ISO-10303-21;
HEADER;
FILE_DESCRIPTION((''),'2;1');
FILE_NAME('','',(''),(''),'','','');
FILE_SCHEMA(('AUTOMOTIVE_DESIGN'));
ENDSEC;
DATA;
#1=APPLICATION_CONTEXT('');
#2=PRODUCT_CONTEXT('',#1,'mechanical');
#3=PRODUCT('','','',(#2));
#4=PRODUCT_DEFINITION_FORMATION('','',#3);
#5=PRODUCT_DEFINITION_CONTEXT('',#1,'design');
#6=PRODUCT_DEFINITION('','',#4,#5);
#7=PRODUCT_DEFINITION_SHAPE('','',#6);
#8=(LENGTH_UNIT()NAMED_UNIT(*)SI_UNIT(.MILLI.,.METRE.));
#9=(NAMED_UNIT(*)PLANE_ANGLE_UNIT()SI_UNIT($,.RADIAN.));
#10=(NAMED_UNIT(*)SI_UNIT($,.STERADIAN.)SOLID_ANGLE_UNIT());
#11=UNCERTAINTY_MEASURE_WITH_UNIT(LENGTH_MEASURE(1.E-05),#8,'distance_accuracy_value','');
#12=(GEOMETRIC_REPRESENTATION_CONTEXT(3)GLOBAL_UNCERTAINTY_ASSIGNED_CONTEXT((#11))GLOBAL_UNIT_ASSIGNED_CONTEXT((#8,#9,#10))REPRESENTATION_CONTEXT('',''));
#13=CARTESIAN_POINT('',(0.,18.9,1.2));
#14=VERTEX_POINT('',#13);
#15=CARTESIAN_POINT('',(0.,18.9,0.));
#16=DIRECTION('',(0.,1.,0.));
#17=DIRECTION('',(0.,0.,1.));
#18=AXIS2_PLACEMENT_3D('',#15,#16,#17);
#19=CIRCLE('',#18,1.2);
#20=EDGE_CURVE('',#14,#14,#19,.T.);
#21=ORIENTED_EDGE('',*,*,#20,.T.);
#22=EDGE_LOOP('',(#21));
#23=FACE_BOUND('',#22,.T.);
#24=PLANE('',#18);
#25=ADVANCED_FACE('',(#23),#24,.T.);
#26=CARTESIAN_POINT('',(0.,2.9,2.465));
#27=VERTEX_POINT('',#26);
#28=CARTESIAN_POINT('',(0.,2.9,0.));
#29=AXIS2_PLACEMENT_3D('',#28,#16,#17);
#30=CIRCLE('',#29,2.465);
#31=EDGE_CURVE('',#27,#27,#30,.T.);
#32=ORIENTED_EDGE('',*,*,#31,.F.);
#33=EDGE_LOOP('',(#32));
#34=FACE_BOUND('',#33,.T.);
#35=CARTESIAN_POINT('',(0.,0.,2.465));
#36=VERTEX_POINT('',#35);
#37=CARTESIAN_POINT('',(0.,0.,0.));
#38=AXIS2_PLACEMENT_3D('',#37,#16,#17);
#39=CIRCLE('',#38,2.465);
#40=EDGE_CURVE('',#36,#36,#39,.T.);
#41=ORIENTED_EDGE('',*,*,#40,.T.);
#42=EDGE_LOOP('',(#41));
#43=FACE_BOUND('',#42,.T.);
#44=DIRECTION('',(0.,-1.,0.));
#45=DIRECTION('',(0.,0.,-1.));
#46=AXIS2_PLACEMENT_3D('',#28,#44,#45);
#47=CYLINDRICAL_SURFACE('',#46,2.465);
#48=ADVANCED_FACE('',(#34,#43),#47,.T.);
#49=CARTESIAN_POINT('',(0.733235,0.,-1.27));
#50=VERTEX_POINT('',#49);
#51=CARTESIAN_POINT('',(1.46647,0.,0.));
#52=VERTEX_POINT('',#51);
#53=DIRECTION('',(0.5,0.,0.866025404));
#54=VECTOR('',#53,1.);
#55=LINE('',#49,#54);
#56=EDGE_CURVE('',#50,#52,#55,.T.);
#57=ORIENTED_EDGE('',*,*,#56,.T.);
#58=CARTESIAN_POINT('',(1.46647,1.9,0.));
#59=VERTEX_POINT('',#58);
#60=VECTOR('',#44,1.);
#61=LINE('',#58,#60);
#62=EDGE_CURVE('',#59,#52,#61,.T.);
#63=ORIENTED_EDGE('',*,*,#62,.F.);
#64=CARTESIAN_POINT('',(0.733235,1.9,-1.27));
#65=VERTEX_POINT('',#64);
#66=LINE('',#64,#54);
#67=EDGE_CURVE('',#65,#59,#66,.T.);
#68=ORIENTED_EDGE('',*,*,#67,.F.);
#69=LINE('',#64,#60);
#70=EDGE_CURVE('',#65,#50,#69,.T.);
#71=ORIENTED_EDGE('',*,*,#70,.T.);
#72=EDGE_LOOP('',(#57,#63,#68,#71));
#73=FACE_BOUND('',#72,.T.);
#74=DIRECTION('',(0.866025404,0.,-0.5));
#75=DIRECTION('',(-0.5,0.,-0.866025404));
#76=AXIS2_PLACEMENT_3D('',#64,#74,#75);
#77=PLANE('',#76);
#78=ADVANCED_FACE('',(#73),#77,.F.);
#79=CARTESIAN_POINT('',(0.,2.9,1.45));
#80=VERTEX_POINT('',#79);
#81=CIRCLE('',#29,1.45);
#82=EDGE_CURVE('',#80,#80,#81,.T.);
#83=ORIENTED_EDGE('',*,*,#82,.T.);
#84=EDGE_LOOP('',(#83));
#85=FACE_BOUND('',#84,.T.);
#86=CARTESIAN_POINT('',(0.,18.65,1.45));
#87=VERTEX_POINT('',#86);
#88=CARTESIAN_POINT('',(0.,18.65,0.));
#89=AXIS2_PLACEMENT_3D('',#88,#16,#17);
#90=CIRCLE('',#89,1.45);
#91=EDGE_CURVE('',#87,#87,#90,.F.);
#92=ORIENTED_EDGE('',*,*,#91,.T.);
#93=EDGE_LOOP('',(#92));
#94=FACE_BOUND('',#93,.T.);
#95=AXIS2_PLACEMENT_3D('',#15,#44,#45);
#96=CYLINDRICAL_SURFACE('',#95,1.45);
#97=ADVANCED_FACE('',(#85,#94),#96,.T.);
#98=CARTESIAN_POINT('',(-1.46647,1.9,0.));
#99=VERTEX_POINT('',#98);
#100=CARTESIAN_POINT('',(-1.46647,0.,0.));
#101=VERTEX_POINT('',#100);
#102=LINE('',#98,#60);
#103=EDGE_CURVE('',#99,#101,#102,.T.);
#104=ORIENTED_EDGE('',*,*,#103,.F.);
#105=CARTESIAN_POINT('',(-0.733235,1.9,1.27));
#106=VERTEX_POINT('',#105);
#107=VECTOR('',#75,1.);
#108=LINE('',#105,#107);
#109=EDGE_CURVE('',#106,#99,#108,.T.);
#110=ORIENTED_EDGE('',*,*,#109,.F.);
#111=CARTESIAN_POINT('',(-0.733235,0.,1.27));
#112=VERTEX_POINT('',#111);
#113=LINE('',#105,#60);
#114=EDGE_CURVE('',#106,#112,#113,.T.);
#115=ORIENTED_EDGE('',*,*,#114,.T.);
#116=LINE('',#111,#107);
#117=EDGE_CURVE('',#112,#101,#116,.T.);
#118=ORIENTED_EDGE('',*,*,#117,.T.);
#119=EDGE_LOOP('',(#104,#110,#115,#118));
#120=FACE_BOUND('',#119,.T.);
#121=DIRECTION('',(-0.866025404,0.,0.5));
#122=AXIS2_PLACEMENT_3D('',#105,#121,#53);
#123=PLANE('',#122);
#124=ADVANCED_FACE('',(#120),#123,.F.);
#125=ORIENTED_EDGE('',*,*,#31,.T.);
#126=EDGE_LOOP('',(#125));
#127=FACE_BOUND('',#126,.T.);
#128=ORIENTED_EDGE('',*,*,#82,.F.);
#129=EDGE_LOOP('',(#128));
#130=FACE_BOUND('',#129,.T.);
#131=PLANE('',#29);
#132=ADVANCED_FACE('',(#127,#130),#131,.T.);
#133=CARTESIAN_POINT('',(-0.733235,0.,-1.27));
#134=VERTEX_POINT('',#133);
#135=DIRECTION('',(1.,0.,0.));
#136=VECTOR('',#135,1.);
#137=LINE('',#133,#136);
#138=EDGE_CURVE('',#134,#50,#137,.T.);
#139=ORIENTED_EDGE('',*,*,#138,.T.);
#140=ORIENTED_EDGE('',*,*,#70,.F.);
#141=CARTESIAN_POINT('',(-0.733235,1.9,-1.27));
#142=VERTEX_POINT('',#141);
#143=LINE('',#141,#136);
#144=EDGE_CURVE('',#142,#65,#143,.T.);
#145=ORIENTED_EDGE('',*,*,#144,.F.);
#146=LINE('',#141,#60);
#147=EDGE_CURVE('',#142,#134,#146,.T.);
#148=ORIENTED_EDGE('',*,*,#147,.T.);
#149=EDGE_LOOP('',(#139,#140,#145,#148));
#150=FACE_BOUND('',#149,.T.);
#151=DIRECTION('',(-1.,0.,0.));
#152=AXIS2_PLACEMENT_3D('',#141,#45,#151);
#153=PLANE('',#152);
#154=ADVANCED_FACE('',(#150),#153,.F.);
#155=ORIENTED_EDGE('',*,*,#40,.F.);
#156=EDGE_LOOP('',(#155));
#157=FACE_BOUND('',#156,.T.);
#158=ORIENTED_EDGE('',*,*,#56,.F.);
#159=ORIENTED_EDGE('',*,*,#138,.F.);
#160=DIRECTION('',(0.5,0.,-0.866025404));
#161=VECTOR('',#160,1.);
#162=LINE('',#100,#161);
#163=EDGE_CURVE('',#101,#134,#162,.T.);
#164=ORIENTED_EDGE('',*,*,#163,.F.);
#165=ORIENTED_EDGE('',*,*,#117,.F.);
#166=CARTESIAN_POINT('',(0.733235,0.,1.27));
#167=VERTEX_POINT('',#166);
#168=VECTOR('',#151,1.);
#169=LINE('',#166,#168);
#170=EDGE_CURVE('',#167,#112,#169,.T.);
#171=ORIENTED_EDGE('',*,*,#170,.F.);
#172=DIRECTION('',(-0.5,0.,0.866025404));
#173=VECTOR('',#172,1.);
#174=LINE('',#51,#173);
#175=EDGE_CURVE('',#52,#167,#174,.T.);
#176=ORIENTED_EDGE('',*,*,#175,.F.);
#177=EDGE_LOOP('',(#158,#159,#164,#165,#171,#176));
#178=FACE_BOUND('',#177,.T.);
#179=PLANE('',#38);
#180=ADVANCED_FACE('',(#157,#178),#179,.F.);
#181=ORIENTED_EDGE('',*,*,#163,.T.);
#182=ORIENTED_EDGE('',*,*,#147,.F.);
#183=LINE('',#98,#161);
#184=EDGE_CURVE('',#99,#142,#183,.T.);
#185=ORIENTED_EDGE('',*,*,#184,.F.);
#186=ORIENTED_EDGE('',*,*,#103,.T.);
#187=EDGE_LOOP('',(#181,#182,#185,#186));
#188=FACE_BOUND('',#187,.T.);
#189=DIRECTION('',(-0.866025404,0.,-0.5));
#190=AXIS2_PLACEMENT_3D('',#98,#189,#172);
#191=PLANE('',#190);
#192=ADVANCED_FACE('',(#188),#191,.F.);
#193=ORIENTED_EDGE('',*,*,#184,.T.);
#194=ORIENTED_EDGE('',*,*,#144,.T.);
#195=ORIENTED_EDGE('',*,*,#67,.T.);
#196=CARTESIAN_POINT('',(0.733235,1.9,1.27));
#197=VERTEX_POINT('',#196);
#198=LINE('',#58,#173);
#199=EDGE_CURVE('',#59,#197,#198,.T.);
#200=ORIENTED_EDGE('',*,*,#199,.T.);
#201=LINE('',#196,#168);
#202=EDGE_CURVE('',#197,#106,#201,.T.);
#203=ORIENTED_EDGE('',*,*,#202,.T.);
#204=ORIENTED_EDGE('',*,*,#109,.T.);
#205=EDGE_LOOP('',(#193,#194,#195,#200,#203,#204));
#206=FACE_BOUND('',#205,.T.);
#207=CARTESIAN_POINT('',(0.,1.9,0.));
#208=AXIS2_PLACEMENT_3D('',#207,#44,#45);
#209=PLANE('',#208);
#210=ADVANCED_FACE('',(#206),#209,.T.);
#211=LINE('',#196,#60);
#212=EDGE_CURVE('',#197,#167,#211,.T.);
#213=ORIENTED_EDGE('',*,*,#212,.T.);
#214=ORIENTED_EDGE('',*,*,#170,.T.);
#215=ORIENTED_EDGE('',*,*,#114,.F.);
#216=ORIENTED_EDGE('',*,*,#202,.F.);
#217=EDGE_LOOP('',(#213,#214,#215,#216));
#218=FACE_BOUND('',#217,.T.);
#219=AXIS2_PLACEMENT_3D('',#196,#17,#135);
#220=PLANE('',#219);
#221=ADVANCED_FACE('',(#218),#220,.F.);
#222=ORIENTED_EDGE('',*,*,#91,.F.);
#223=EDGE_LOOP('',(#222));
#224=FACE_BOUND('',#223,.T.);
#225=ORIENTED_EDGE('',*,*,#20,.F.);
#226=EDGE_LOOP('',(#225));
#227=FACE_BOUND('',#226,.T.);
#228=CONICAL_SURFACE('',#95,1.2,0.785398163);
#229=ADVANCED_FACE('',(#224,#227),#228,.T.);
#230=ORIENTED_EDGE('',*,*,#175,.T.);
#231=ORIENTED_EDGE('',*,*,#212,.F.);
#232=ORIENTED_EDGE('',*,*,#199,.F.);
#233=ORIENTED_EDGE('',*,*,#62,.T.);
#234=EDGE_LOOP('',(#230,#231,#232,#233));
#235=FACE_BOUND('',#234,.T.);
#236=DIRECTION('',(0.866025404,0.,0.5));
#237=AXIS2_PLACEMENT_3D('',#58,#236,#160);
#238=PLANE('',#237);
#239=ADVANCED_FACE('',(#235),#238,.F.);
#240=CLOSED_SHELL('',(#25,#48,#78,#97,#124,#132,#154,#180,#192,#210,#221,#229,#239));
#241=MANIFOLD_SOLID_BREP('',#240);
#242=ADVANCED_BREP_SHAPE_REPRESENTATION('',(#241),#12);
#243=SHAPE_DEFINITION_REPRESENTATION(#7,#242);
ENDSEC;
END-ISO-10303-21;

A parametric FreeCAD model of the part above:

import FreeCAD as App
import Part
import Sketcher

V = App.Vector
Q = App.Units.Quantity


def edges_at(feature, points):
    """Names of the edges that pass closest to the given points."""
    edges = feature.Shape.Edges
    near = lambda p: min(range(len(edges)), key=lambda i: edges[i].distToShape(Part.Vertex(*p))[0])
    return sorted({f"Edge{near(p) + 1}" for p in points})

doc = App.newDocument("Part")
body = doc.addObject("PartDesign::Body", "Body")

sketch1 = doc.addObject("Sketcher::SketchObject", "Sketch")
body.addObject(sketch1)
sketch1.AttachmentSupport = (doc.XZ_Plane, [""])
sketch1.MapMode = "FlatFace"
sketch1.addGeometry(Part.Circle(V(0, 0, 0), V(0, 0, 1), 2.465), False)
sketch1.addConstraint([
    Sketcher.Constraint("Coincident", 0, 3, -1, 1),
    Sketcher.Constraint("Diameter", 0, 4.93),
])
pad1 = doc.addObject("PartDesign::Pad", "Pad")
body.addObject(pad1)
pad1.Profile = sketch1
pad1.Length = 2.9
pad1.Reversed = True

sketch2 = doc.addObject("Sketcher::SketchObject", "Sketch001")
body.addObject(sketch2)
sketch2.AttachmentSupport = (doc.XZ_Plane, [""])
sketch2.MapMode = "FlatFace"
sketch2.AttachmentOffset = App.Placement(V(0, 0, -2.9), App.Rotation())
sketch2.addGeometry(Part.Circle(V(0, 0, 0), V(0, 0, 1), 1.45), False)
sketch2.addConstraint([
    Sketcher.Constraint("Coincident", 0, 3, -1, 1),
    Sketcher.Constraint("Diameter", 0, 2.9),
])
pad2 = doc.addObject("PartDesign::Pad", "Pad001")
body.addObject(pad2)
pad2.Profile = sketch2
pad2.Length = 16
pad2.Reversed = True

sketch3 = doc.addObject("Sketcher::SketchObject", "Sketch002")
body.addObject(sketch3)
sketch3.AttachmentSupport = (doc.XZ_Plane, [""])
sketch3.MapMode = "FlatFace"
sketch3.addGeometry([
    Part.LineSegment(V(0.733235, -1.27, 0), V(1.46647, 0, 0)),
    Part.LineSegment(V(1.46647, 0, 0), V(0.733235, 1.27, 0)),
    Part.LineSegment(V(0.733235, 1.27, 0), V(-0.733235, 1.27, 0)),
    Part.LineSegment(V(-0.733235, 1.27, 0), V(-1.46647, 0, 0)),
    Part.LineSegment(V(-1.46647, 0, 0), V(-0.733235, -1.27, 0)),
    Part.LineSegment(V(-0.733235, -1.27, 0), V(0.733235, -1.27, 0)),
], False)
sketch3.addConstraint([
    Sketcher.Constraint("Coincident", 0, 2, 1, 1),
    Sketcher.Constraint("Coincident", 1, 2, 2, 1),
    Sketcher.Constraint("Coincident", 2, 2, 3, 1),
    Sketcher.Constraint("Coincident", 3, 2, 4, 1),
    Sketcher.Constraint("Coincident", 4, 2, 5, 1),
    Sketcher.Constraint("Coincident", 5, 2, 0, 1),
    Sketcher.Constraint("Horizontal", 2),
    Sketcher.Constraint("Horizontal", 5),
    Sketcher.Constraint("Symmetric", 0, 2, 3, 2, -1, 1),
    Sketcher.Constraint("Symmetric", 1, 2, 4, 2, -1, 1),
    Sketcher.Constraint("PointOnObject", 0, 2, -1),
    Sketcher.Constraint("Parallel", 0, 3),
    Sketcher.Constraint("Vertical", 2, 2, 4, 2),
    Sketcher.Constraint("Angle", 0, Q("60 deg")),
    Sketcher.Constraint("DistanceY", -1, 1, 1, 2, 1.27),
    Sketcher.Constraint("DistanceX", 2, 2, 2, 1, 1.46647),
])
pocket1 = doc.addObject("PartDesign::Pocket", "Pocket")
body.addObject(pocket1)
pocket1.Profile = sketch3
pocket1.Length = 1.9
doc.recompute()

chamfer = doc.addObject("PartDesign::Chamfer", "Chamfer")
body.addObject(chamfer)
chamfer.Base = (pocket1, edges_at(pocket1, [(-1.45, 18.9, 0)]))
chamfer.Size = 0.25

doc.recompute()
